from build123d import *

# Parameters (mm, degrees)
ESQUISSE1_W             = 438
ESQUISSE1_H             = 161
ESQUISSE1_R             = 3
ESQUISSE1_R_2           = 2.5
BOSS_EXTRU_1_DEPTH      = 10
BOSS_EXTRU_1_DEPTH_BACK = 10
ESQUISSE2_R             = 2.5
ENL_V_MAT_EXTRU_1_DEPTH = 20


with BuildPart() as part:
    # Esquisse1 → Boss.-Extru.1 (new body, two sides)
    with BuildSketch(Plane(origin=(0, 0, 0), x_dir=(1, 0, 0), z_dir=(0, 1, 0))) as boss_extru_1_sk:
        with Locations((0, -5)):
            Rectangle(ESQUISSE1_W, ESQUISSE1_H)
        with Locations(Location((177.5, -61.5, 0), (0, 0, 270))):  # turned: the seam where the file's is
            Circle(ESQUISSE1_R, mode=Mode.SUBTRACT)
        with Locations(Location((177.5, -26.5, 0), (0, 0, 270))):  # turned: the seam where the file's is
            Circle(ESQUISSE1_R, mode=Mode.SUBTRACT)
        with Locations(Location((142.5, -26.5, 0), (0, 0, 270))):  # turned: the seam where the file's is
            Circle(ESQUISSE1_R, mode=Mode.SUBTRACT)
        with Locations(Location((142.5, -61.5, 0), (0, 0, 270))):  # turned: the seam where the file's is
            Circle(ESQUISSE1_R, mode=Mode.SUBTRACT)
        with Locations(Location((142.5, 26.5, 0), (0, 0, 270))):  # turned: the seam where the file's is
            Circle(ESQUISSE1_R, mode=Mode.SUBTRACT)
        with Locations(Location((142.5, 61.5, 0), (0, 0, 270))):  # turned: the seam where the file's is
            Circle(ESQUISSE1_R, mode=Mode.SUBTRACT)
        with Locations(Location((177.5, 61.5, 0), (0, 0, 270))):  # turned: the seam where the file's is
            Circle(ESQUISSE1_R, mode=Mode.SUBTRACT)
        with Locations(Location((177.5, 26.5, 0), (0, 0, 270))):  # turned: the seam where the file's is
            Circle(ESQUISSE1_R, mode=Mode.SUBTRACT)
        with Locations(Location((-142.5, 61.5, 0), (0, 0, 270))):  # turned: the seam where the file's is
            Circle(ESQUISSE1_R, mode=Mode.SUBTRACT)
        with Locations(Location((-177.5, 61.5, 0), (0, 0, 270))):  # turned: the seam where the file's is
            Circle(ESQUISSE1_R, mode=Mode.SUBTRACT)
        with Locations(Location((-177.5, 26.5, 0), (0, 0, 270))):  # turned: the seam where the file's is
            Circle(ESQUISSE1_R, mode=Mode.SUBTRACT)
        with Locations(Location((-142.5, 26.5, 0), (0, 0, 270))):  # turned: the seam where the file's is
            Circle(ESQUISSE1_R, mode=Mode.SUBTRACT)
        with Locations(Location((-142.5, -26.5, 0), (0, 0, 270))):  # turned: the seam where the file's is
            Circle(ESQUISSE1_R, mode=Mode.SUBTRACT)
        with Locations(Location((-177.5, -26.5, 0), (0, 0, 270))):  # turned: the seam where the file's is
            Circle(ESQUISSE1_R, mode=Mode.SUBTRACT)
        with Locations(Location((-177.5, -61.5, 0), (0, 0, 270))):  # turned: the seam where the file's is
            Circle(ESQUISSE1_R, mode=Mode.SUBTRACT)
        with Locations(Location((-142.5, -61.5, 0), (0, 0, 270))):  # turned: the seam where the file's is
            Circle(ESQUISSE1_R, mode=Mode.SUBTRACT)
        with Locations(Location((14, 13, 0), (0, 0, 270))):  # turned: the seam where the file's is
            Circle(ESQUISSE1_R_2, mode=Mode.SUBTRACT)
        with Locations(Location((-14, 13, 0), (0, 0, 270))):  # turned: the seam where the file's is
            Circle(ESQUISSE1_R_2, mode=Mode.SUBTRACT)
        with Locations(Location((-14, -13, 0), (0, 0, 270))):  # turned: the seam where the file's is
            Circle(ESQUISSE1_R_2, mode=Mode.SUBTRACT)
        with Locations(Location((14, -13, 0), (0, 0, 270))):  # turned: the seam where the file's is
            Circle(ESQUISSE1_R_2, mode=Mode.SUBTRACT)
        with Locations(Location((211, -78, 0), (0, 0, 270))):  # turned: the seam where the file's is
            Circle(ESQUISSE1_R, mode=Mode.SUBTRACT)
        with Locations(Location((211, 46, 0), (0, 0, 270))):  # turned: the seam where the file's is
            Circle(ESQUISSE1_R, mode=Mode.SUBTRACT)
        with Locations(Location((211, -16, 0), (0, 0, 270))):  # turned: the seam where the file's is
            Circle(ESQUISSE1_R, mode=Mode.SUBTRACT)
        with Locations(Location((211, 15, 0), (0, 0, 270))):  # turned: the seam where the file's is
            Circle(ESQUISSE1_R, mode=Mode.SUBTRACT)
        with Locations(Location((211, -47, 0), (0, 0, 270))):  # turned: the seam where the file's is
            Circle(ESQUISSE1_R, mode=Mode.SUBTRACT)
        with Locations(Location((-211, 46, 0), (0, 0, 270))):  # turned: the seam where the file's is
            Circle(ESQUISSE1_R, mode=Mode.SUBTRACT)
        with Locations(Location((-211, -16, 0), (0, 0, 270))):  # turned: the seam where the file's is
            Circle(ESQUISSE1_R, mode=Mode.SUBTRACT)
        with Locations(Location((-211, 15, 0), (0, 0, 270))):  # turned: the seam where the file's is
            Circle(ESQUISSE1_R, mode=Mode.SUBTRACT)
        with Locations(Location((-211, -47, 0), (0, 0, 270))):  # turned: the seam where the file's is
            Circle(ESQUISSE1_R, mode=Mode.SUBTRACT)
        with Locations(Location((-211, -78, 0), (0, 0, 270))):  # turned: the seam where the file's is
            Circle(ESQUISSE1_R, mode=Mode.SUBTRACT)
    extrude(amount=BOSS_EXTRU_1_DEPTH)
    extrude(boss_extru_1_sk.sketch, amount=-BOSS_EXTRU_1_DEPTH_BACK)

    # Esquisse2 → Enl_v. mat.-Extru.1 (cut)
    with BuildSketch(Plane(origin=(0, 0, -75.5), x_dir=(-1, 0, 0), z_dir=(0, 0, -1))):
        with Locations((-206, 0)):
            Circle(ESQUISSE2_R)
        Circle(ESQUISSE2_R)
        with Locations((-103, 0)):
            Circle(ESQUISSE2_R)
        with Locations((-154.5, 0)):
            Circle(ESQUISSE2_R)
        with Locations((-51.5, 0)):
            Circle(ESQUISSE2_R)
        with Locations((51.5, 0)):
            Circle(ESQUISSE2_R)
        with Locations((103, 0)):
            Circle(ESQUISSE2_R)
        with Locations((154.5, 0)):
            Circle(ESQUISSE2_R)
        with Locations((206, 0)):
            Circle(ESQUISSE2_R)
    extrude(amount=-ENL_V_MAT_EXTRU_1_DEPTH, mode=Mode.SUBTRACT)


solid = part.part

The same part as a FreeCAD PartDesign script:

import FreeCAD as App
import Part
import Sketcher
from FreeCAD import Vector


def add_polygon(sketch, points):
    """Adds a closed chain of lines whose ends are joined by coincident constraints."""
    first, n = sketch.GeometryCount, len(points)
    for a, b in zip(points, points[1:] + points[:1]):
        sketch.addGeometry(Part.LineSegment(App.Vector(*a, 0), App.Vector(*b, 0)), False)
    for i in range(n):
        sketch.addConstraint(Sketcher.Constraint("Coincident", first + i, 2, first + (i + 1) % n, 1))

doc = App.newDocument("Part")
body = doc.addObject("PartDesign::Body", "Body")

# Sketch on XZ plane
sketch1 = doc.addObject("Sketcher::SketchObject", "Sketch")
body.addObject(sketch1)
sketch1.AttachmentSupport = (doc.XZ_Plane, [""])
sketch1.MapMode = "FlatFace"
add_polygon(sketch1, [(-219, -75.5), (-219, 85.5), (219, 85.5), (219, -75.5)])  # lines 0-3
sketch1.addGeometry(Part.Circle(Vector(-211, 78, 0), Vector(0, 0, 1), 3), False)  # 4
sketch1.addGeometry(Part.Circle(Vector(-177.5, 61.5, 0), Vector(0, 0, 1), 3), False)  # 5
sketch1.addGeometry(Part.Circle(Vector(-211, 47, 0), Vector(0, 0, 1), 3), False)  # 6
sketch1.addGeometry(Part.Circle(Vector(-142.5, 61.5, 0), Vector(0, 0, 1), 3), False)  # 7
sketch1.addGeometry(Part.Circle(Vector(-177.5, 26.5, 0), Vector(0, 0, 1), 3), False)  # 8
sketch1.addGeometry(Part.Circle(Vector(-142.5, 26.5, 0), Vector(0, 0, 1), 3), False)  # 9
sketch1.addGeometry(Part.Circle(Vector(-211, 16, 0), Vector(0, 0, 1), 3), False)  # 10
sketch1.addGeometry(Part.Circle(Vector(-14, 13, 0), Vector(0, 0, 1), 2.5), False)  # 11
sketch1.addGeometry(Part.Circle(Vector(211, 78, 0), Vector(0, 0, 1), 3), False)  # 12
sketch1.addGeometry(Part.Circle(Vector(142.5, 61.5, 0), Vector(0, 0, 1), 3), False)  # 13
sketch1.addGeometry(Part.Circle(Vector(177.5, 61.5, 0), Vector(0, 0, 1), 3), False)  # 14
sketch1.addGeometry(Part.Circle(Vector(211, 47, 0), Vector(0, 0, 1), 3), False)  # 15
sketch1.addGeometry(Part.Circle(Vector(14, 13, 0), Vector(0, 0, 1), 2.5), False)  # 16
sketch1.addGeometry(Part.Circle(Vector(142.5, 26.5, 0), Vector(0, 0, 1), 3), False)  # 17
sketch1.addGeometry(Part.Circle(Vector(177.5, 26.5, 0), Vector(0, 0, 1), 3), False)  # 18
sketch1.addGeometry(Part.Circle(Vector(211, 16, 0), Vector(0, 0, 1), 3), False)  # 19
sketch1.addGeometry(Part.Circle(Vector(-211, -15, 0), Vector(0, 0, 1), 3), False)  # 20
sketch1.addGeometry(Part.Circle(Vector(-177.5, -26.5, 0), Vector(0, 0, 1), 3), False)  # 21
sketch1.addGeometry(Part.Circle(Vector(-142.5, -26.5, 0), Vector(0, 0, 1), 3), False)  # 22
sketch1.addGeometry(Part.Circle(Vector(-14, -13, 0), Vector(0, 0, 1), 2.5), False)  # 23
sketch1.addGeometry(Part.Circle(Vector(-211, -46, 0), Vector(0, 0, 1), 3), False)  # 24
sketch1.addGeometry(Part.Circle(Vector(-177.5, -61.5, 0), Vector(0, 0, 1), 3), False)  # 25
sketch1.addGeometry(Part.Circle(Vector(-142.5, -61.5, 0), Vector(0, 0, 1), 3), False)  # 26
sketch1.addGeometry(Part.Circle(Vector(14, -13, 0), Vector(0, 0, 1), 2.5), False)  # 27
sketch1.addGeometry(Part.Circle(Vector(142.5, -26.5, 0), Vector(0, 0, 1), 3), False)  # 28
sketch1.addGeometry(Part.Circle(Vector(211, -15, 0), Vector(0, 0, 1), 3), False)  # 29
sketch1.addGeometry(Part.Circle(Vector(177.5, -26.5, 0), Vector(0, 0, 1), 3), False)  # 30
sketch1.addGeometry(Part.Circle(Vector(211, -46, 0), Vector(0, 0, 1), 3), False)  # 31
sketch1.addGeometry(Part.Circle(Vector(142.5, -61.5, 0), Vector(0, 0, 1), 3), False)  # 32
sketch1.addGeometry(Part.Circle(Vector(177.5, -61.5, 0), Vector(0, 0, 1), 3), False)  # 33
sketch1.addConstraint([
    Sketcher.Constraint("Vertical", 0),
    Sketcher.Constraint("Horizontal", 1),
    Sketcher.Constraint("Vertical", 2),
    Sketcher.Constraint("Horizontal", 3),
    Sketcher.Constraint("Equal", 4, 5),
    Sketcher.Constraint("Equal", 5, 6),
    Sketcher.Constraint("Equal", 6, 7),
    Sketcher.Constraint("Equal", 7, 8),
    Sketcher.Constraint("Equal", 8, 9),
    Sketcher.Constraint("Equal", 9, 10),
    Sketcher.Constraint("Equal", 10, 12),
    Sketcher.Constraint("Equal", 12, 13),
    Sketcher.Constraint("Equal", 13, 14),
    Sketcher.Constraint("Equal", 14, 15),
    Sketcher.Constraint("Equal", 11, 16),
    Sketcher.Constraint("Equal", 15, 17),
    Sketcher.Constraint("Equal", 17, 18),
    Sketcher.Constraint("Equal", 18, 19),
    Sketcher.Constraint("Equal", 19, 20),
    Sketcher.Constraint("Equal", 20, 21),
    Sketcher.Constraint("Equal", 21, 22),
    Sketcher.Constraint("Equal", 16, 23),
    Sketcher.Constraint("Equal", 22, 24),
    Sketcher.Constraint("Equal", 24, 25),
    Sketcher.Constraint("Equal", 25, 26),
    Sketcher.Constraint("Equal", 23, 27),
    Sketcher.Constraint("Equal", 26, 28),
    Sketcher.Constraint("Equal", 28, 29),
    Sketcher.Constraint("Equal", 29, 30),
    Sketcher.Constraint("Equal", 30, 31),
    Sketcher.Constraint("Equal", 31, 32),
    Sketcher.Constraint("Equal", 32, 33),
    Sketcher.Constraint("Symmetric", 18, 3, 21, 3, -1, 1),
    Sketcher.Constraint("Symmetric", 17, 3, 22, 3, -1, 1),
    Sketcher.Constraint("Symmetric", 16, 3, 23, 3, -1, 1),
    Sketcher.Constraint("Symmetric", 14, 3, 25, 3, -1, 1),
    Sketcher.Constraint("Symmetric", 13, 3, 26, 3, -1, 1),
    Sketcher.Constraint("Symmetric", 11, 3, 27, 3, -1, 1),
    Sketcher.Constraint("Symmetric", 9, 3, 28, 3, -1, 1),
    Sketcher.Constraint("Symmetric", 8, 3, 30, 3, -1, 1),
    Sketcher.Constraint("Symmetric", 7, 3, 32, 3, -1, 1),
    Sketcher.Constraint("Symmetric", 5, 3, 33, 3, -1, 1),
    Sketcher.Constraint("Symmetric", 4, 3, 12, 3, -2),
    Sketcher.Constraint("Symmetric", 7, 3, 13, 3, -2),
    Sketcher.Constraint("Symmetric", 5, 3, 14, 3, -2),
    Sketcher.Constraint("Symmetric", 6, 3, 15, 3, -2),
    Sketcher.Constraint("Symmetric", 11, 3, 16, 3, -2),
    Sketcher.Constraint("Symmetric", 9, 3, 17, 3, -2),
    Sketcher.Constraint("Symmetric", 8, 3, 18, 3, -2),
    Sketcher.Constraint("Symmetric", 10, 3, 19, 3, -2),
    Sketcher.Constraint("Symmetric", 20, 3, 29, 3, -2),
    Sketcher.Constraint("Symmetric", 24, 3, 31, 3, -2),
    Sketcher.Constraint("Horizontal", 5, 3, 7, 3),
    Sketcher.Constraint("Horizontal", 8, 3, 9, 3),
    Sketcher.Constraint("Vertical", 4, 3, 6, 3),
    Sketcher.Constraint("Vertical", 5, 3, 8, 3),
    Sketcher.Constraint("Vertical", 7, 3, 9, 3),
    Sketcher.Constraint("Vertical", 6, 3, 10, 3),
    Sketcher.Constraint("Vertical", 10, 3, 20, 3),
    Sketcher.Constraint("Vertical", 20, 3, 24, 3),
    Sketcher.Constraint("Diameter", 4, 6.0),
    Sketcher.Constraint("Diameter", 11, 5.0),
    Sketcher.Constraint("DistanceX", 1, 1, 1, 2, 438.0),
    Sketcher.Constraint("DistanceY", 0, 1, 0, 2, 161.0),
    Sketcher.Constraint("DistanceX", 4, 3, -1, 1, 211.0),
    Sketcher.Constraint("DistanceY", -1, 1, 4, 3, 78.0),
    Sketcher.Constraint("DistanceY", -1, 1, 6, 3, 47.0),
    Sketcher.Constraint("DistanceY", -1, 1, 10, 3, 16.0),
    Sketcher.Constraint("DistanceX", 11, 3, -1, 1, 14.0),
    Sketcher.Constraint("DistanceY", -1, 1, 11, 3, 13.0),
    Sketcher.Constraint("DistanceY", 20, 3, -1, 1, 15.0),
    Sketcher.Constraint("DistanceY", 24, 3, -1, 1, 46.0),
    Sketcher.Constraint("DistanceX", 0, 2, -1, 1, 219.0),
    Sketcher.Constraint("DistanceX", 5, 3, 7, 3, 35.0),
    Sketcher.Constraint("DistanceY", 8, 3, 5, 3, 35.0),
    Sketcher.Constraint("DistanceX", 7, 3, 13, 3, 285.0),
    Sketcher.Constraint("DistanceY", 21, 3, 8, 3, 53.0),
    Sketcher.Constraint("DistanceY", 5, 3, 0, 2, 24.0),
])
pad1 = doc.addObject("PartDesign::Pad", "Pad")
body.addObject(pad1)
pad1.Profile = sketch1
pad1.Type = "TwoLengths"
pad1.Length = 10
pad1.Length2 = 10
pad1.Reversed = True

# Sketch on XY plane
sketch2 = doc.addObject("Sketcher::SketchObject", "Sketch001")
body.addObject(sketch2)
sketch2.AttachmentSupport = (doc.XY_Plane, [""])
sketch2.MapMode = "FlatFace"
sketch2.AttachmentOffset = App.Placement(Vector(0, 0, -75.5), App.Rotation())
sketch2.addGeometry([
    Part.Circle(Vector(206, 0, 0), Vector(0, 0, 1), 2.5),  # 0
    Part.Circle(Vector(0, 0, 0), Vector(0, 0, 1), 2.5),  # 1
    Part.Circle(Vector(103, 0, 0), Vector(0, 0, 1), 2.5),  # 2
    Part.Circle(Vector(154.5, 0, 0), Vector(0, 0, 1), 2.5),  # 3
    Part.Circle(Vector(51.5, 0, 0), Vector(0, 0, 1), 2.5),  # 4
    Part.Circle(Vector(-51.5, 0, 0), Vector(0, 0, 1), 2.5),  # 5
    Part.Circle(Vector(-103, 0, 0), Vector(0, 0, 1), 2.5),  # 6
    Part.Circle(Vector(-154.5, 0, 0), Vector(0, 0, 1), 2.5),  # 7
    Part.Circle(Vector(-206, 0, 0), Vector(0, 0, 1), 2.5),  # 8
], False)
sketch2.addConstraint([
    Sketcher.Constraint("Coincident", 1, 3, -1, 1),
    Sketcher.Constraint("Equal", 0, 1),
    Sketcher.Constraint("Equal", 1, 2),
    Sketcher.Constraint("Equal", 2, 3),
    Sketcher.Constraint("Equal", 3, 4),
    Sketcher.Constraint("Equal", 4, 5),
    Sketcher.Constraint("Equal", 5, 6),
    Sketcher.Constraint("Equal", 6, 7),
    Sketcher.Constraint("Equal", 7, 8),
    Sketcher.Constraint("Symmetric", 4, 3, 5, 3, -1, 1),
    Sketcher.Constraint("Symmetric", 2, 3, 6, 3, -1, 1),
    Sketcher.Constraint("Symmetric", 3, 3, 7, 3, -1, 1),
    Sketcher.Constraint("Symmetric", 0, 3, 8, 3, -1, 1),
    Sketcher.Constraint("PointOnObject", 0, 3, -1),
    Sketcher.Constraint("PointOnObject", 2, 3, -1),
    Sketcher.Constraint("PointOnObject", 3, 3, -1),
    Sketcher.Constraint("PointOnObject", 4, 3, -1),
    Sketcher.Constraint("Diameter", 0, 5.0),
    Sketcher.Constraint("DistanceX", -1, 1, 0, 3, 206.0),
    Sketcher.Constraint("DistanceX", -1, 1, 2, 3, 103.0),
    Sketcher.Constraint("DistanceX", 4, 3, 3, 3, 103.0),
    Sketcher.Constraint("DistanceX", 5, 3, 4, 3, 103.0),
])
pocket1 = doc.addObject("PartDesign::Pocket", "Pocket")
body.addObject(pocket1)
pocket1.Profile = sketch2
pocket1.Length = 20
pocket1.Reversed = True

doc.recompute()
